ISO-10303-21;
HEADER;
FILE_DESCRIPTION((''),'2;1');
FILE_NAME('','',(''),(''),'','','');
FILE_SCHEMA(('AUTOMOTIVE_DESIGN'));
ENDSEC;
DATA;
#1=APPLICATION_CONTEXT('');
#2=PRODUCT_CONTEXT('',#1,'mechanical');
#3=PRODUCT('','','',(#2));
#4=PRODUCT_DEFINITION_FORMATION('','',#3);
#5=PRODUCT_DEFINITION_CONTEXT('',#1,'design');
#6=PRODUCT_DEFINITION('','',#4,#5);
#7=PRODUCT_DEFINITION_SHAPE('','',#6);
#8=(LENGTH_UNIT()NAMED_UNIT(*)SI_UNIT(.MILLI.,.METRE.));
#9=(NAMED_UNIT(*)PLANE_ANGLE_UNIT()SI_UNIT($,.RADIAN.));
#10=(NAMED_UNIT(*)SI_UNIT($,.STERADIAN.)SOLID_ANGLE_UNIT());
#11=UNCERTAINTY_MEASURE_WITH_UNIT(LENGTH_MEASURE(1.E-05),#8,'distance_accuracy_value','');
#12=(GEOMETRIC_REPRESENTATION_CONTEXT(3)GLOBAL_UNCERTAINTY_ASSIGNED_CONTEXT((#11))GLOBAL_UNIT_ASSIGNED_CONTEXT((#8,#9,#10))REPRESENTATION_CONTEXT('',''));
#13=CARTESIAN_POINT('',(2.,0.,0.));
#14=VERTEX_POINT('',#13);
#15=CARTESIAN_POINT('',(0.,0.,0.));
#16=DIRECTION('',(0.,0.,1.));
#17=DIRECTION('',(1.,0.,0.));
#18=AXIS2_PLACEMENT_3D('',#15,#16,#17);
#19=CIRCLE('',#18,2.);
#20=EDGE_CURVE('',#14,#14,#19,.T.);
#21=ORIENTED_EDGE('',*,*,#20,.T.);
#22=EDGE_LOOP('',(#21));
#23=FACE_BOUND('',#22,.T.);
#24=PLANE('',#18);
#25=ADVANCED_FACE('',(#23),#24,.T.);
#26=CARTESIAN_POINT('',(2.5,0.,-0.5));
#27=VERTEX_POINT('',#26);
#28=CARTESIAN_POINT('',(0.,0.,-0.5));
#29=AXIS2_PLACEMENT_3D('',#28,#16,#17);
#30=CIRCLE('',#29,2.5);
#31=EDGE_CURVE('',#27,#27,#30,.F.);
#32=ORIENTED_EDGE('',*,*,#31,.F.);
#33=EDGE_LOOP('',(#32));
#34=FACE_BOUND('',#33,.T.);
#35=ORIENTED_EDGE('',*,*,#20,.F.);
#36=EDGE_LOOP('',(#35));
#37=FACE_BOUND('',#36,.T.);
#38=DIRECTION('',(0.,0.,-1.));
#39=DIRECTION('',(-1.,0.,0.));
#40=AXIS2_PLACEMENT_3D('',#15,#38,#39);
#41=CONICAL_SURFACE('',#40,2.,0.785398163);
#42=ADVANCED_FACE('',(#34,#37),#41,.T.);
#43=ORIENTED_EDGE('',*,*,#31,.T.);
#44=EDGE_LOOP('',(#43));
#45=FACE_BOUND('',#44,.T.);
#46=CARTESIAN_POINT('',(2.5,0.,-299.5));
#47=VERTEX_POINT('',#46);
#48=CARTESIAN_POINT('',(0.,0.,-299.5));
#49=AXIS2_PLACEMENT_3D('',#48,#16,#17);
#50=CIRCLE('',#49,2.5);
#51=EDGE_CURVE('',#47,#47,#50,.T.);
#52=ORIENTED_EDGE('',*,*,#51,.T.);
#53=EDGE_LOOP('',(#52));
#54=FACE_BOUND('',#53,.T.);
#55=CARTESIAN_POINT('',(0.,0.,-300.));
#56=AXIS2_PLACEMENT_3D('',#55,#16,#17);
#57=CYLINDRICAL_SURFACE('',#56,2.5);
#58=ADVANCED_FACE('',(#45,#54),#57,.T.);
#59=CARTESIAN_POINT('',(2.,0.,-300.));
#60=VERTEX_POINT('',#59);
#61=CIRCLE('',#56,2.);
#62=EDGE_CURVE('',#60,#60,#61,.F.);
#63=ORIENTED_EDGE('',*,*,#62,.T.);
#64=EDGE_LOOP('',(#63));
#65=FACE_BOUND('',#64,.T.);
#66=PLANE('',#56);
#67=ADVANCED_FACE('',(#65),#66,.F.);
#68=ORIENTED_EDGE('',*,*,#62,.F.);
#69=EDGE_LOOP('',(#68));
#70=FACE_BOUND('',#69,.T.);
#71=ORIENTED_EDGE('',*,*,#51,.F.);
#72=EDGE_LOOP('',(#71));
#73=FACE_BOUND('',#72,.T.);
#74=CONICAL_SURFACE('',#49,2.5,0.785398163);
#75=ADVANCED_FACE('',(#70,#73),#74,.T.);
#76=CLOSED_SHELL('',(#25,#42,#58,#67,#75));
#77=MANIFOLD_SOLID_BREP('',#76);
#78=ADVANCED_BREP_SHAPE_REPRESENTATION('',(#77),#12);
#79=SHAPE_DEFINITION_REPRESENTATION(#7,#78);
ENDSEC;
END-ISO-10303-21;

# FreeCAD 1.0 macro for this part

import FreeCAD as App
import Part
import Sketcher
from FreeCAD import Vector


def edges_at(feature, points):
    """Names of the edges that pass closest to the given points."""
    edges = feature.Shape.Edges
    near = lambda p: min(range(len(edges)), key=lambda i: edges[i].distToShape(Part.Vertex(*p))[0])
    return sorted({f"Edge{near(p) + 1}" for p in points})

doc = App.newDocument("Part")
body = doc.addObject("PartDesign::Body", "Body")

# Sketch on XY plane
sketch1 = body.newObject("Sketcher::SketchObject", "Sketch")
sketch1.AttachmentSupport = (doc.getObject("XY_Plane"), [""])
sketch1.MapMode = "FlatFace"
sketch1.addGeometry(Part.Circle(Vector(0, 0, 0), Vector(0, 0, 1), 2.5), False)
sketch1.addConstraint(Sketcher.Constraint("Coincident", 0, 3, -1, 1))
sketch1.addConstraint(Sketcher.Constraint("Diameter", 0, 5.0))
pad1 = body.newObject("PartDesign::Pad", "Pad")
pad1.Profile = sketch1
pad1.Length = 300
pad1.Reversed = True
doc.recompute()

chamfer = body.newObject("PartDesign::Chamfer", "Chamfer")
chamfer.Base = (pad1, edges_at(pad1, [(-2.5, 0, 0), (-2.5, 0, -300)]))
chamfer.Size = 0.5

doc.recompute()
